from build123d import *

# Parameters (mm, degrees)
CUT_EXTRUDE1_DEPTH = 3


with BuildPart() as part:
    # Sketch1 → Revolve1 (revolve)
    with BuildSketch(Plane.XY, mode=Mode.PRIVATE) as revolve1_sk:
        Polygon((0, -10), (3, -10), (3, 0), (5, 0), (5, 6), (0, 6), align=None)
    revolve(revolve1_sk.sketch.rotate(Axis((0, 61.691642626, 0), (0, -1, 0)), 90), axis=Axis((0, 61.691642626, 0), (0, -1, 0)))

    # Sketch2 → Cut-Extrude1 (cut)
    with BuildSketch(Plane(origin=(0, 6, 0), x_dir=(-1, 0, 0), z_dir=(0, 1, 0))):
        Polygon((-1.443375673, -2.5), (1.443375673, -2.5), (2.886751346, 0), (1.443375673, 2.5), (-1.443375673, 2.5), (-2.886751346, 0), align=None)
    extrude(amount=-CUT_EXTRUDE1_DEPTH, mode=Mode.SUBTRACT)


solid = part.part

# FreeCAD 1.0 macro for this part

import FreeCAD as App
import Part
import Sketcher
from FreeCAD import Vector
Q = App.Units.Quantity


def add_polygon(sketch, points):
    """Adds a closed chain of lines whose ends are joined by coincident constraints."""
    first, n = sketch.GeometryCount, len(points)
    for a, b in zip(points, points[1:] + points[:1]):
        sketch.addGeometry(Part.LineSegment(App.Vector(*a, 0), App.Vector(*b, 0)), False)
    for i in range(n):
        sketch.addConstraint(Sketcher.Constraint("Coincident", first + i, 2, first + (i + 1) % n, 1))

doc = App.newDocument("Part")
body = doc.addObject("PartDesign::Body", "Body")

sketch1 = body.newObject("Sketcher::SketchObject", "Sketch")
sketch1.AttachmentSupport = (doc.getObject("XY_Plane"), [""])
sketch1.MapMode = "FlatFace"
add_polygon(sketch1, [(0, -10), (3, -10), (3, 0), (5, 0), (5, 6), (0, 6)])
sketch1.addConstraint([
    Sketcher.Constraint("Horizontal", 0),
    Sketcher.Constraint("Vertical", 1),
    Sketcher.Constraint("Horizontal", 2),
    Sketcher.Constraint("Vertical", 3),
    Sketcher.Constraint("Horizontal", 4),
    Sketcher.Constraint("Vertical", 5),
    Sketcher.Constraint("PointOnObject", 1, 2, -1),
    Sketcher.Constraint("PointOnObject", 4, 2, -2),
    Sketcher.Constraint("DistanceX", 0, 1, 0, 2, Q("3 mm")),
    Sketcher.Constraint("DistanceX", 2, 1, 2, 2, Q("2 mm")),
    Sketcher.Constraint("DistanceY", 1, 1, 1, 2, Q("10 mm")),
    Sketcher.Constraint("DistanceY", 3, 1, 3, 2, Q("6 mm")),
])
revolution = body.newObject("PartDesign::Revolution", "Revolution")
revolution.Profile = sketch1
revolution.ReferenceAxis = (sketch1, ["V_Axis"])
revolution.Angle = 360

sketch2 = body.newObject("Sketcher::SketchObject", "Sketch001")
sketch2.AttachmentSupport = (doc.getObject("XZ_Plane"), [""])
sketch2.MapMode = "FlatFace"
sketch2.AttachmentOffset = App.Placement(Vector(0, 0, -6), App.Rotation())
add_polygon(sketch2, [(1.443376, -2.5), (-1.443376, -2.5), (-2.886751, 0), (-1.443376, 2.5), (1.443376, 2.5), (2.886751, 0)])
sketch2.addConstraint([
    Sketcher.Constraint("Horizontal", 0),
    Sketcher.Constraint("Horizontal", 3),
    Sketcher.Constraint("Symmetric", 0, 2, 3, 2, -1, 1),
    Sketcher.Constraint("Symmetric", 1, 2, 4, 2, -1, 1),
    Sketcher.Constraint("PointOnObject", 1, 2, -1),
    Sketcher.Constraint("Parallel", 2, 5),
    Sketcher.Constraint("Vertical", 0, 2, 2, 2),
    Sketcher.Constraint("Angle", 1, Q("120 deg")),
    Sketcher.Constraint("DistanceY", 0, 2, 2, 2, Q("5 mm")),
    Sketcher.Constraint("DistanceX", 0, 2, 0, 1, Q("2.886751 mm")),
])
pocket1 = body.newObject("PartDesign::Pocket", "Pocket")
pocket1.Profile = sketch2
pocket1.Length = 3
pocket1.Reversed = True

doc.recompute()
